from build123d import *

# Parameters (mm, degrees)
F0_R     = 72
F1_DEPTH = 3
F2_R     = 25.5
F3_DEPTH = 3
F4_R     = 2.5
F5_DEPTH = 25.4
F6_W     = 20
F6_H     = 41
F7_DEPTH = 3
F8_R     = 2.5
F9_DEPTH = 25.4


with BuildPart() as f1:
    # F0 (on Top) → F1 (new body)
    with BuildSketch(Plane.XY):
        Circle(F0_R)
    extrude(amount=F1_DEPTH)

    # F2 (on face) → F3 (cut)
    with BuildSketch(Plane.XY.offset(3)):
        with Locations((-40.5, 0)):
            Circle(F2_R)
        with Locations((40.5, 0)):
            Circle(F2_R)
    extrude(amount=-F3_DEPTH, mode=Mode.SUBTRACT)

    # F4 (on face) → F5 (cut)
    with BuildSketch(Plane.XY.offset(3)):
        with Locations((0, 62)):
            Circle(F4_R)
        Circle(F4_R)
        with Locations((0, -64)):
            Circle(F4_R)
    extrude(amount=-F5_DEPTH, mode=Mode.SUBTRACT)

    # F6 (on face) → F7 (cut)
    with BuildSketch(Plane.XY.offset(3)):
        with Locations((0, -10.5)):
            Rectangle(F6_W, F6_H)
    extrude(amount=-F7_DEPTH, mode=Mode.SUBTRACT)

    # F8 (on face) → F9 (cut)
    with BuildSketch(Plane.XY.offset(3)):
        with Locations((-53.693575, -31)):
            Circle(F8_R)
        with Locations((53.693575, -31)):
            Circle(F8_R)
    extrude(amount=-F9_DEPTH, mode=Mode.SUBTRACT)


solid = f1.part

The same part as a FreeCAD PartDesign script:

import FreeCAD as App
import Part
import Sketcher
from FreeCAD import Vector

doc = App.newDocument("Part")
body = doc.addObject("PartDesign::Body", "Body")

# Sketch on XY plane
sketch1 = body.newObject("Sketcher::SketchObject", "Sketch")
sketch1.AttachmentSupport = (doc.getObject("XY_Plane"), [""])
sketch1.MapMode = "FlatFace"
sketch1.addGeometry(Part.Circle(Vector(0, 0, 0), Vector(0, 0, 1), 72), False)
sketch1.addConstraint(Sketcher.Constraint("Coincident", 0, 3, -1, 1))
sketch1.addConstraint(Sketcher.Constraint("Diameter", 0, 144.0))
pad1 = body.newObject("PartDesign::Pad", "Pad")
pad1.Profile = sketch1
pad1.Length = 3

# Sketch on XY plane
sketch2 = body.newObject("Sketcher::SketchObject", "Sketch001")
sketch2.AttachmentSupport = (doc.getObject("XY_Plane"), [""])
sketch2.MapMode = "FlatFace"
sketch2.AttachmentOffset = App.Placement(Vector(0, 0, 3), App.Rotation())
sketch2.addGeometry(Part.Circle(Vector(-40, 0, 0), Vector(0, 0, 1), 26), False)
sketch2.addGeometry(Part.Circle(Vector(40, 0, 0), Vector(0, 0, 1), 26), False)
sketch2.addConstraint(Sketcher.Constraint("Equal", 0, 1))
sketch2.addConstraint(Sketcher.Constraint("Symmetric", 0, 3, 1, 3, -1, 1))
sketch2.addConstraint(Sketcher.Constraint("PointOnObject", 0, 3, -1))
sketch2.addConstraint(Sketcher.Constraint("Diameter", 0, 51.0))
sketch2.addConstraint(Sketcher.Constraint("DistanceX", 0, 3, 1, 3, 81.0))
pocket1 = body.newObject("PartDesign::Pocket", "Pocket")
pocket1.Profile = sketch2
pocket1.Length = 3

# Sketch on XY plane
sketch3 = body.newObject("Sketcher::SketchObject", "Sketch002")
sketch3.AttachmentSupport = (doc.getObject("XY_Plane"), [""])
sketch3.MapMode = "FlatFace"
sketch3.AttachmentOffset = App.Placement(Vector(0, 0, 3), App.Rotation())
sketch3.addGeometry(Part.Circle(Vector(0, 62, 0), Vector(0, 0, 1), 2.5), False)
sketch3.addGeometry(Part.Circle(Vector(0, 0, 0), Vector(0, 0, 1), 2.5), False)
sketch3.addGeometry(Part.Circle(Vector(0, -64, 0), Vector(0, 0, 1), 2.5), False)
sketch3.addConstraint(Sketcher.Constraint("Coincident", 1, 3, -1, 1))
sketch3.addConstraint(Sketcher.Constraint("Equal", 0, 1))
sketch3.addConstraint(Sketcher.Constraint("Equal", 1, 2))
sketch3.addConstraint(Sketcher.Constraint("PointOnObject", 0, 3, -2))
sketch3.addConstraint(Sketcher.Constraint("PointOnObject", 2, 3, -2))
sketch3.addConstraint(Sketcher.Constraint("Diameter", 0, 5.0))
sketch3.addConstraint(Sketcher.Constraint("DistanceY", -1, 1, 0, 3, 62.0))
sketch3.addConstraint(Sketcher.Constraint("DistanceY", 2, 3, -1, 1, 64.0))
pocket2 = body.newObject("PartDesign::Pocket", "Pocket001")
pocket2.Profile = sketch3
pocket2.Length = 25.4

# Sketch on XY plane
sketch4 = body.newObject("Sketcher::SketchObject", "Sketch003")
sketch4.AttachmentSupport = (doc.getObject("XY_Plane"), [""])
sketch4.MapMode = "FlatFace"
sketch4.AttachmentOffset = App.Placement(Vector(0, 0, 3), App.Rotation())
sketch4.addGeometry(Part.LineSegment(Vector(-10, 10, 0), Vector(-10, -31, 0)), False)
sketch4.addGeometry(Part.LineSegment(Vector(-10, -31, 0), Vector(10, -31, 0)), False)
sketch4.addGeometry(Part.LineSegment(Vector(10, -31, 0), Vector(10, 10, 0)), False)
sketch4.addGeometry(Part.LineSegment(Vector(10, 10, 0), Vector(-10, 10, 0)), False)
sketch4.addConstraint(Sketcher.Constraint("Coincident", 0, 2, 1, 1))
sketch4.addConstraint(Sketcher.Constraint("Coincident", 1, 2, 2, 1))
sketch4.addConstraint(Sketcher.Constraint("Coincident", 2, 2, 3, 1))
sketch4.addConstraint(Sketcher.Constraint("Coincident", 3, 2, 0, 1))
sketch4.addConstraint(Sketcher.Constraint("Vertical", 0))
sketch4.addConstraint(Sketcher.Constraint("Horizontal", 1))
sketch4.addConstraint(Sketcher.Constraint("Vertical", 2))
sketch4.addConstraint(Sketcher.Constraint("Horizontal", 3))
sketch4.addConstraint(Sketcher.Constraint("DistanceX", 1, 1, 1, 2, 20.0))
sketch4.addConstraint(Sketcher.Constraint("DistanceY", 0, 2, 0, 1, 41.0))
sketch4.addConstraint(Sketcher.Constraint("DistanceX", 0, 2, -1, 1, 10.0))
sketch4.addConstraint(Sketcher.Constraint("DistanceY", 0, 2, -1, 1, 31.0))
pocket3 = body.newObject("PartDesign::Pocket", "Pocket002")
pocket3.Profile = sketch4
pocket3.Length = 3

# Sketch on XY plane
sketch5 = body.newObject("Sketcher::SketchObject", "Sketch004")
sketch5.AttachmentSupport = (doc.getObject("XY_Plane"), [""])
sketch5.MapMode = "FlatFace"
sketch5.AttachmentOffset = App.Placement(Vector(0, 0, 3), App.Rotation())
sketch5.addGeometry(Part.Circle(Vector(-53.7, -31, 0), Vector(0, 0, 1), 2.5), False)
sketch5.addGeometry(Part.Circle(Vector(53.7, -31, 0), Vector(0, 0, 1), 2.5), False)
sketch5.addConstraint(Sketcher.Constraint("Equal", 0, 1))
sketch5.addConstraint(Sketcher.Constraint("Symmetric", 0, 3, 1, 3, -2))
sketch5.addConstraint(Sketcher.Constraint("Diameter", 0, 5.0))
sketch5.addConstraint(Sketcher.Constraint("DistanceY", 0, 3, -1, 1, 31.0))
sketch5.addConstraint(Sketcher.Constraint("DistanceX", 0, 3, 1, 3, 107.38715))
pocket4 = body.newObject("PartDesign::Pocket", "Pocket003")
pocket4.Profile = sketch5
pocket4.Length = 25.4

doc.recompute()
